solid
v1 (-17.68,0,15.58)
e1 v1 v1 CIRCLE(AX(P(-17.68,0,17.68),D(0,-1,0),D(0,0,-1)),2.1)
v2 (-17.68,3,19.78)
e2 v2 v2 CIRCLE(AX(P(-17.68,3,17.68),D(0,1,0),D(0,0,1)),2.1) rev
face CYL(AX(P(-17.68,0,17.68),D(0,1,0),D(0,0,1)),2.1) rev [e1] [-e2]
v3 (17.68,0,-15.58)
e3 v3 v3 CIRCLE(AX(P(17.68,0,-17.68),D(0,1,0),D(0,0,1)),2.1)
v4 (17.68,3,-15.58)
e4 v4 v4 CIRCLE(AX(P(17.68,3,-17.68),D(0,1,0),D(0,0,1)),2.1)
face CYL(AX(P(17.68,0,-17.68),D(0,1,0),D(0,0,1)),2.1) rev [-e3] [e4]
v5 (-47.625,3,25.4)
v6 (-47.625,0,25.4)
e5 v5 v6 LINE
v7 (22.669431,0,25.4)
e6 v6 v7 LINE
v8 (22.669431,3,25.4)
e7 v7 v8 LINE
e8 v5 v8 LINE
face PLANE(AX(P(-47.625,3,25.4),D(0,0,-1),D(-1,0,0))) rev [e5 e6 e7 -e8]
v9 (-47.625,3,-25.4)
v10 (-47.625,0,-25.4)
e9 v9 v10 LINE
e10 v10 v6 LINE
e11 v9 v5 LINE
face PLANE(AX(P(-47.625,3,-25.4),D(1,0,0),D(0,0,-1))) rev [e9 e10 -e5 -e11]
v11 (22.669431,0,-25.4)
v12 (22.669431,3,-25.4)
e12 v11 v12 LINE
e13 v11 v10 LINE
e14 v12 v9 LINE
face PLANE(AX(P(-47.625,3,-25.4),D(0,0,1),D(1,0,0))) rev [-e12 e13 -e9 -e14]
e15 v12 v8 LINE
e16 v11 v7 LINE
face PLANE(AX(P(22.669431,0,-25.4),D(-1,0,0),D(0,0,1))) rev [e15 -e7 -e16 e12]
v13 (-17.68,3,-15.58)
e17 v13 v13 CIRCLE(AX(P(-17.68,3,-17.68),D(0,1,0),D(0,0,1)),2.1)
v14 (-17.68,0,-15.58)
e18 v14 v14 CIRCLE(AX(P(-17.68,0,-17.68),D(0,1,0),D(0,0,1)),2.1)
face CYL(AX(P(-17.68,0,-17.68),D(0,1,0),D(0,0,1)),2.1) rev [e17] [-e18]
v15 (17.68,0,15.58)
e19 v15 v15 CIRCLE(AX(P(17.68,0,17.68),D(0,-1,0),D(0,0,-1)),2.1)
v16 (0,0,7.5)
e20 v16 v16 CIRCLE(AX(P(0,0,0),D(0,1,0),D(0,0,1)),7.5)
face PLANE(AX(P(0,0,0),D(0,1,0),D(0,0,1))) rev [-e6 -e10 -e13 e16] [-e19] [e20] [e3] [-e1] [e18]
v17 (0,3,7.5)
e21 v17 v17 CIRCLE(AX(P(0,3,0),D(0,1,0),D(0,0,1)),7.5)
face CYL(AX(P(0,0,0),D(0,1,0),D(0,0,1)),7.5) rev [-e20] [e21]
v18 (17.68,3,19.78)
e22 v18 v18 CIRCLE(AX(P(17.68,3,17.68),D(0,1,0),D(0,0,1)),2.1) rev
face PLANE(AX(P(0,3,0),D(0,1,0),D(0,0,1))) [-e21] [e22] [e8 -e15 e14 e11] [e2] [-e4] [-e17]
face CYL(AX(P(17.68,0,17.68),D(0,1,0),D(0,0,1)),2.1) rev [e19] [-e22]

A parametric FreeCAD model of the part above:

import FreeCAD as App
import Part
import Sketcher

V = App.Vector


def add_polygon(sketch, points):
    """Adds a closed chain of lines whose ends are joined by coincident constraints."""
    first, n = sketch.GeometryCount, len(points)
    for a, b in zip(points, points[1:] + points[:1]):
        sketch.addGeometry(Part.LineSegment(App.Vector(*a, 0), App.Vector(*b, 0)), False)
    for i in range(n):
        sketch.addConstraint(Sketcher.Constraint("Coincident", first + i, 2, first + (i + 1) % n, 1))

doc = App.newDocument("Part")
body = doc.addObject("PartDesign::Body", "Body")

sketch1 = doc.addObject("Sketcher::SketchObject", "Sketch")
body.addObject(sketch1)
sketch1.AttachmentSupport = (doc.XZ_Plane, [""])
sketch1.MapMode = "FlatFace"
add_polygon(sketch1, [(-48, -25), (-48, 25), (48, 25), (48, -25)])
sketch1.addConstraint([
    Sketcher.Constraint("Vertical", 0),
    Sketcher.Constraint("Horizontal", 1),
    Sketcher.Constraint("Vertical", 2),
    Sketcher.Constraint("Horizontal", 3),
    Sketcher.Constraint("Symmetric", 0, 2, 2, 2, -1, 1),
    Sketcher.Constraint("DistanceY", 0, 1, 0, 2, 50.8),
    Sketcher.Constraint("DistanceX", 1, 1, 1, 2, 95.25),
])
pad1 = doc.addObject("PartDesign::Pad", "Pad")
body.addObject(pad1)
pad1.Profile = sketch1
pad1.Length = 3
pad1.Reversed = True

sketch2 = doc.addObject("Sketcher::SketchObject", "Sketch001")
body.addObject(sketch2)
sketch2.AttachmentSupport = (doc.XZ_Plane, [""])
sketch2.MapMode = "FlatFace"
sketch2.AttachmentOffset = App.Placement(V(0, 0, -3), App.Rotation())
sketch2.addGeometry([
    Part.Circle(V(-17.7, -17.7, 0), V(0, 0, 1), 2.1),
    Part.Circle(V(17.7, -17.7, 0), V(0, 0, 1), 2.1),
    Part.Circle(V(17.7, 17.7, 0), V(0, 0, 1), 2.1),
    Part.Circle(V(-17.7, 17.7, 0), V(0, 0, 1), 2.1),
], False)
sketch2.addConstraint([
    Sketcher.Constraint("Equal", 0, 1),
    Sketcher.Constraint("Equal", 1, 2),
    Sketcher.Constraint("Equal", 2, 3),
    Sketcher.Constraint("Symmetric", 0, 3, 2, 3, -1, 1),
    Sketcher.Constraint("Symmetric", 1, 3, 3, 3, -1, 1),
    Sketcher.Constraint("Symmetric", 0, 3, 1, 3, -2),
    Sketcher.Constraint("Diameter", 0, 4.2),
    Sketcher.Constraint("DistanceX", 0, 3, -1, 1, 17.68),
    Sketcher.Constraint("DistanceY", 0, 3, -1, 1, 17.68),
])
pocket1 = doc.addObject("PartDesign::Pocket", "Pocket")
body.addObject(pocket1)
pocket1.Profile = sketch2
pocket1.Type = "ThroughAll"
pocket1.Midplane = True

sketch3 = doc.addObject("Sketcher::SketchObject", "Sketch002")
body.addObject(sketch3)
sketch3.AttachmentSupport = (doc.XZ_Plane, [""])
sketch3.MapMode = "FlatFace"
sketch3.AttachmentOffset = App.Placement(V(0, 0, -3), App.Rotation())
sketch3.addGeometry(Part.Circle(V(0, 0, 0), V(0, 0, 1), 8), False)
sketch3.addConstraint([
    Sketcher.Constraint("Coincident", 0, 3, -1, 1),
    Sketcher.Constraint("Diameter", 0, 15.0),
])
pocket2 = doc.addObject("PartDesign::Pocket", "Pocket001")
body.addObject(pocket2)
pocket2.Profile = sketch3
pocket2.Type = "ThroughAll"
pocket2.Midplane = True

sketch4 = doc.addObject("Sketcher::SketchObject", "Sketch003")
body.addObject(sketch4)
sketch4.AttachmentSupport = (doc.XZ_Plane, [""])
sketch4.MapMode = "FlatFace"
sketch4.AttachmentOffset = App.Placement(V(0, 0, -3), App.Rotation())
add_polygon(sketch4, [(23, -25), (23, 25), (48, 25), (48, -25)])
sketch4.addConstraint([
    Sketcher.Constraint("Vertical", 0),
    Sketcher.Constraint("Horizontal", 1),
    Sketcher.Constraint("Vertical", 2),
    Sketcher.Constraint("Horizontal", 3),
    Sketcher.Constraint("DistanceY", 0, 1, 0, 2, 50.8),
    Sketcher.Constraint("DistanceY", -1, 1, 0, 2, 25.4),
    Sketcher.Constraint("DistanceX", -1, 1, 1, 2, 47.625),
    Sketcher.Constraint("DistanceX", 1, 1, 1, 2, 24.955569),
])
pocket3 = doc.addObject("PartDesign::Pocket", "Pocket002")
body.addObject(pocket3)
pocket3.Profile = sketch4
pocket3.Type = "ThroughAll"
pocket3.Midplane = True

doc.recompute()
